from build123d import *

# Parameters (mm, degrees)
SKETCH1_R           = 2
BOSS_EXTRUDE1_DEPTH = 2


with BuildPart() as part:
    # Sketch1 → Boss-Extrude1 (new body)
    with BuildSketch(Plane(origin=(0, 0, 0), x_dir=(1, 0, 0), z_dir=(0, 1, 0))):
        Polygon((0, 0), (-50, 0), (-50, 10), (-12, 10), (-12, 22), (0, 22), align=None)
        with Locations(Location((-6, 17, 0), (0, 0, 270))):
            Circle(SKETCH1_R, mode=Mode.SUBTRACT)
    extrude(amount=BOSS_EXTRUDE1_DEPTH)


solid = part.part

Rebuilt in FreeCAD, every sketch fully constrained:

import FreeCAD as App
import Part
import Sketcher
from FreeCAD import Vector
Q = App.Units.Quantity

doc = App.newDocument("Part")
body = doc.addObject("PartDesign::Body", "Body")

# Sketch on XZ plane
sketch1 = body.newObject("Sketcher::SketchObject", "Sketch")
sketch1.AttachmentSupport = (doc.getObject("XZ_Plane"), [""])
sketch1.MapMode = "FlatFace"
sketch1.addGeometry([
    Part.LineSegment(Vector(-50, 0, 0), Vector(0, 0, 0)),  # 0
    Part.LineSegment(Vector(0, 0, 0), Vector(0, -22, 0)),  # 1
    Part.LineSegment(Vector(0, -22, 0), Vector(-12, -22, 0)),  # 2
    Part.LineSegment(Vector(-12, -22, 0), Vector(-12, -10, 0)),  # 3
    Part.LineSegment(Vector(-12, -10, 0), Vector(-50, -10, 0)),  # 4
    Part.LineSegment(Vector(-50, -10, 0), Vector(-50, 0, 0)),  # 5
    Part.Circle(Vector(-6, -17, 0), Vector(0, 0, 1), 2),  # 6
], False)
sketch1.addConstraint([
    Sketcher.Constraint("Coincident", 0, 2, 1, 1),
    Sketcher.Constraint("Coincident", 1, 2, 2, 1),
    Sketcher.Constraint("Coincident", 2, 2, 3, 1),
    Sketcher.Constraint("Coincident", 3, 2, 4, 1),
    Sketcher.Constraint("Coincident", 4, 2, 5, 1),
    Sketcher.Constraint("Coincident", 5, 2, 0, 1),
    Sketcher.Constraint("Horizontal", 0),
    Sketcher.Constraint("Vertical", 1),
    Sketcher.Constraint("Horizontal", 2),
    Sketcher.Constraint("Vertical", 3),
    Sketcher.Constraint("Horizontal", 4),
    Sketcher.Constraint("Vertical", 5),
    Sketcher.Constraint("Coincident", 0, 2, -1, 1),
    Sketcher.Constraint("Equal", 2, 3),
    Sketcher.Constraint("Diameter", 6, Q("4 mm")),
    Sketcher.Constraint("DistanceX", 0, 1, 0, 2, Q("50 mm")),
    Sketcher.Constraint("DistanceX", 2, 2, 2, 1, Q("12 mm")),
    Sketcher.Constraint("DistanceY", 1, 2, 1, 1, Q("22 mm")),
    Sketcher.Constraint("DistanceX", 6, 3, -1, 1, Q("6 mm")),
    Sketcher.Constraint("DistanceY", 6, 3, -1, 1, Q("17 mm")),
])
pad1 = body.newObject("PartDesign::Pad", "Pad")
pad1.Profile = sketch1
pad1.Length = 2
pad1.Reversed = True

doc.recompute()
